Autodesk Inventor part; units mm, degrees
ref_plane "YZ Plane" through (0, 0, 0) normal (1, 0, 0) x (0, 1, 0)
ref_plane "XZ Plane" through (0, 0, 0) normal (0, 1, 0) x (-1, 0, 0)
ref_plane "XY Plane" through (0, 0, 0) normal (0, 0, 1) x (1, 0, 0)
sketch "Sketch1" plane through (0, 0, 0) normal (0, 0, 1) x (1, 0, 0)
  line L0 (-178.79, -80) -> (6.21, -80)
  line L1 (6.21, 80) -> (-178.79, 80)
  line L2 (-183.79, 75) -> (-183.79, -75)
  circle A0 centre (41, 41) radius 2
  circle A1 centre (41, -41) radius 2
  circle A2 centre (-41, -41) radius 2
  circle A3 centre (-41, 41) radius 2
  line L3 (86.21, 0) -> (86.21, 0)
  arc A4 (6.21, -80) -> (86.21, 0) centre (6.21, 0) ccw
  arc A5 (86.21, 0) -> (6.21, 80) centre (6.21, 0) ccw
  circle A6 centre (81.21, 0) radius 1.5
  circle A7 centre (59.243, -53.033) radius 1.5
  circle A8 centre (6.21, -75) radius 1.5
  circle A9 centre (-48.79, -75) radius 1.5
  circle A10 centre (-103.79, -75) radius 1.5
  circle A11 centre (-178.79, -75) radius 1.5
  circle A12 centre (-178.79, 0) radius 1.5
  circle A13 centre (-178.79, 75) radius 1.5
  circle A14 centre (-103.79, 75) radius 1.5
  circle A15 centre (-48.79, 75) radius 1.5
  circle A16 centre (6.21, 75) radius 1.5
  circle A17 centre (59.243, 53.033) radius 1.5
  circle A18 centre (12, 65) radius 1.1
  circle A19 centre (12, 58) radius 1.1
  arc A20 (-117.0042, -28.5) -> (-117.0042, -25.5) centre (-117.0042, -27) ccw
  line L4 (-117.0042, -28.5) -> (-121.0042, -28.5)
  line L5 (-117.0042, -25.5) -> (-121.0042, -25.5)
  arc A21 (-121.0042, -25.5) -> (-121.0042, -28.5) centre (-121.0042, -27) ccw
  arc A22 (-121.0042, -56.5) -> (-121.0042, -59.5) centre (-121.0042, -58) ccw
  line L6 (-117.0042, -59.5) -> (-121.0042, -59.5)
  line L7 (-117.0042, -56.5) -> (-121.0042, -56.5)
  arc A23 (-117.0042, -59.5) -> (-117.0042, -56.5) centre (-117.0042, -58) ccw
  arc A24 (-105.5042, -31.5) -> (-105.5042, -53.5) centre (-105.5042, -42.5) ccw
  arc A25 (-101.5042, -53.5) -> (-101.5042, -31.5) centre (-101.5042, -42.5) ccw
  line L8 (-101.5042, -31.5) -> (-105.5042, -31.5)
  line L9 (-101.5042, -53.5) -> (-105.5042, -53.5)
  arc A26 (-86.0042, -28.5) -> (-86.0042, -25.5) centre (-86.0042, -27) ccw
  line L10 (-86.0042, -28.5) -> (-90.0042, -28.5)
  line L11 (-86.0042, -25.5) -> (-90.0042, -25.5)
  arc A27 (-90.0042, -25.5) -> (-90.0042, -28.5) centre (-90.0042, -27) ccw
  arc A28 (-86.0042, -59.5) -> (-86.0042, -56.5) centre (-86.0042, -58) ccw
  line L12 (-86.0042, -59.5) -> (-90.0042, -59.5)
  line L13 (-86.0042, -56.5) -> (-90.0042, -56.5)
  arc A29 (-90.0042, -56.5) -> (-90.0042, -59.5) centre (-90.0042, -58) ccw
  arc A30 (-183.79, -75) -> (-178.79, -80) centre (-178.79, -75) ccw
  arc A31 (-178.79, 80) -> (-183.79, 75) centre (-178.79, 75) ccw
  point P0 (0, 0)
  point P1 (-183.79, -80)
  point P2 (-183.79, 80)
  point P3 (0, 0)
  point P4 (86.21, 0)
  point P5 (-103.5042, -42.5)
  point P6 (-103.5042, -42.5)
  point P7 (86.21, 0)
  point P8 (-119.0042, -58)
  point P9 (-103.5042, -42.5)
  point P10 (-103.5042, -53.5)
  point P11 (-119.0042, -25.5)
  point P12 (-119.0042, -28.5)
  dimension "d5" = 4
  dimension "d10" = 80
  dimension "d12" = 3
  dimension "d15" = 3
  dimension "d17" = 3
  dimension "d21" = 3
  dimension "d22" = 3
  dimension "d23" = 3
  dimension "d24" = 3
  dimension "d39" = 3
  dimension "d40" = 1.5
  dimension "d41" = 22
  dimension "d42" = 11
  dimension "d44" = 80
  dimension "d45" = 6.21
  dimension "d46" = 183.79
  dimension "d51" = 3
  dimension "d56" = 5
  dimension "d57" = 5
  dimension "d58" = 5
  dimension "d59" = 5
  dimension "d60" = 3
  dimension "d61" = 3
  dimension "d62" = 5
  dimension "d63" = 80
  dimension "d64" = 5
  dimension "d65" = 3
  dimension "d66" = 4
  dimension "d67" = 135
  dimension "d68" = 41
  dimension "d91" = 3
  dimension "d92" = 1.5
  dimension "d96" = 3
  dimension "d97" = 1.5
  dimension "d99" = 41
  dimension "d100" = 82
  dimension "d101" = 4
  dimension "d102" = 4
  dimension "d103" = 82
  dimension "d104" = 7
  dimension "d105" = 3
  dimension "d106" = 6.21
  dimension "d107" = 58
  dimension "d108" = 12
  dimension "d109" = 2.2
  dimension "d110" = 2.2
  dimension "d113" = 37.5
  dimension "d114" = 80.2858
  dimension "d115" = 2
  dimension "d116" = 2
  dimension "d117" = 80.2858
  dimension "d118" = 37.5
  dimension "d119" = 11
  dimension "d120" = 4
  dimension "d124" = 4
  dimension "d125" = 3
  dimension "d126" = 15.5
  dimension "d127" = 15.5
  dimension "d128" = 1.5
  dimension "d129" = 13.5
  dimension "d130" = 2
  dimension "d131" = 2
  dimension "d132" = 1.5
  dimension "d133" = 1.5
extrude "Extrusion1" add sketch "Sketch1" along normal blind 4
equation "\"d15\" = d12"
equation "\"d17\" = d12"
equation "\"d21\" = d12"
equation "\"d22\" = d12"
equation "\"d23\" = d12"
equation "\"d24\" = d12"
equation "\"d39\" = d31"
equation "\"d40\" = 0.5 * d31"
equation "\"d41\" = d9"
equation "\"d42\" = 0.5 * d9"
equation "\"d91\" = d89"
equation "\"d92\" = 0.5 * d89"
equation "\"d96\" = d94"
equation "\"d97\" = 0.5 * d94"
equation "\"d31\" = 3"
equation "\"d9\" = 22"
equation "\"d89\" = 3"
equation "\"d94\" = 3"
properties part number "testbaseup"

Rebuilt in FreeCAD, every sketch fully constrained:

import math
import FreeCAD as App
import Part
import Sketcher

V = App.Vector
Q = App.Units.Quantity

doc = App.newDocument("Part")
body = doc.addObject("PartDesign::Body", "Body")

sketch1 = body.newObject("Sketcher::SketchObject", "Sketch")
sketch1.AttachmentSupport = (doc.getObject("XY_Plane"), [""])
sketch1.MapMode = "FlatFace"
sketch1.addGeometry(Part.ArcOfCircle(Part.Circle(V(-178.8, -75, 0), V(0, 0, 1), 5), math.radians(180), math.radians(270)), False)
sketch1.addGeometry(Part.LineSegment(V(-178.8, -80, 0), V(6.2, -80, 0)), False)
sketch1.addGeometry(Part.ArcOfCircle(Part.Circle(V(6.2, 0, 0), V(0, 0, 1), 80), math.radians(-90), math.radians(90)), False)
sketch1.addGeometry(Part.LineSegment(V(6.2, 80, 0), V(-178.8, 80, 0)), False)
sketch1.addGeometry(Part.ArcOfCircle(Part.Circle(V(-178.8, 75, 0), V(0, 0, 1), 5), math.radians(90), math.radians(180)), False)
sketch1.addGeometry(Part.LineSegment(V(-183.8, 75, 0), V(-183.8, -75, 0)), False)
sketch1.addGeometry(Part.Circle(V(-178.8, -75, 0), V(0, 0, 1), 1.5), False)
sketch1.addGeometry(Part.ArcOfCircle(Part.Circle(V(-121, -58, 0), V(0, 0, 1), 1.5), math.radians(90), math.radians(270)), False)
sketch1.addGeometry(Part.LineSegment(V(-121, -56.5, 0), V(-117, -56.5, 0)), False)
sketch1.addGeometry(Part.ArcOfCircle(Part.Circle(V(-117, -58, 0), V(0, 0, 1), 1.5), math.radians(-90), math.radians(90)), False)
sketch1.addGeometry(Part.LineSegment(V(-117, -59.5, 0), V(-121, -59.5, 0)), False)
sketch1.addGeometry(Part.Circle(V(-103.8, -75, 0), V(0, 0, 1), 1.5), False)
sketch1.addGeometry(Part.ArcOfCircle(Part.Circle(V(-86, -58, 0), V(0, 0, 1), 1.5), math.radians(-90), math.radians(90)), False)
sketch1.addGeometry(Part.LineSegment(V(-86, -59.5, 0), V(-90, -59.5, 0)), False)
sketch1.addGeometry(Part.ArcOfCircle(Part.Circle(V(-90, -58, 0), V(0, 0, 1), 1.5), math.radians(90), math.radians(270)), False)
sketch1.addGeometry(Part.LineSegment(V(-90, -56.5, 0), V(-86, -56.5, 0)), False)
sketch1.addGeometry(Part.ArcOfCircle(Part.Circle(V(-105.5, -42.5, 0), V(0, 0, 1), 11), math.radians(90), math.radians(270)), False)
sketch1.addGeometry(Part.LineSegment(V(-105.5, -31.5, 0), V(-101.5, -31.5, 0)), False)
sketch1.addGeometry(Part.ArcOfCircle(Part.Circle(V(-101.5, -42.5, 0), V(0, 0, 1), 11), math.radians(-90), math.radians(90)), False)
sketch1.addGeometry(Part.LineSegment(V(-101.5, -53.5, 0), V(-105.5, -53.5, 0)), False)
sketch1.addGeometry(Part.ArcOfCircle(Part.Circle(V(-117, -27, 0), V(0, 0, 1), 1.5), math.radians(-90), math.radians(90)), False)
sketch1.addGeometry(Part.LineSegment(V(-117, -28.5, 0), V(-121, -28.5, 0)), False)
sketch1.addGeometry(Part.ArcOfCircle(Part.Circle(V(-121, -27, 0), V(0, 0, 1), 1.5), math.radians(90), math.radians(270)), False)
sketch1.addGeometry(Part.LineSegment(V(-121, -25.5, 0), V(-117, -25.5, 0)), False)
sketch1.addGeometry(Part.ArcOfCircle(Part.Circle(V(-86, -27, 0), V(0, 0, 1), 1.5), math.radians(-90), math.radians(90)), False)
sketch1.addGeometry(Part.LineSegment(V(-86, -28.5, 0), V(-90, -28.5, 0)), False)
sketch1.addGeometry(Part.ArcOfCircle(Part.Circle(V(-90, -27, 0), V(0, 0, 1), 1.5), math.radians(90), math.radians(270)), False)
sketch1.addGeometry(Part.LineSegment(V(-90, -25.5, 0), V(-86, -25.5, 0)), False)
sketch1.addGeometry(Part.Circle(V(-48.8, -75, 0), V(0, 0, 1), 1.5), False)
sketch1.addGeometry(Part.Circle(V(6.2, -75, 0), V(0, 0, 1), 1.5), False)
sketch1.addGeometry(Part.Circle(V(-41, -41, 0), V(0, 0, 1), 2), False)
sketch1.addGeometry(Part.Circle(V(41, -41, 0), V(0, 0, 1), 2), False)
sketch1.addGeometry(Part.Circle(V(59.2, -53, 0), V(0, 0, 1), 1.5), False)
sketch1.addGeometry(Part.Circle(V(-178.8, 0, 0), V(0, 0, 1), 1.5), False)
sketch1.addGeometry(Part.Circle(V(-178.8, 75, 0), V(0, 0, 1), 1.5), False)
sketch1.addGeometry(Part.Circle(V(-103.8, 75, 0), V(0, 0, 1), 1.5), False)
sketch1.addGeometry(Part.Circle(V(81.2, 0, 0), V(0, 0, 1), 1.5), False)
sketch1.addGeometry(Part.Circle(V(-41, 41, 0), V(0, 0, 1), 2), False)
sketch1.addGeometry(Part.Circle(V(12, 58, 0), V(0, 0, 1), 1.1), False)
sketch1.addGeometry(Part.Circle(V(-48.8, 75, 0), V(0, 0, 1), 1.5), False)
sketch1.addGeometry(Part.Circle(V(12, 65, 0), V(0, 0, 1), 1.1), False)
sketch1.addGeometry(Part.Circle(V(6.2, 75, 0), V(0, 0, 1), 1.5), False)
sketch1.addGeometry(Part.Circle(V(41, 41, 0), V(0, 0, 1), 2), False)
sketch1.addGeometry(Part.Circle(V(59.2, 53, 0), V(0, 0, 1), 1.5), False)
sketch1.addConstraint(Sketcher.Constraint("Tangent", 0, 2, 1, 1))
sketch1.addConstraint(Sketcher.Constraint("Tangent", 1, 2, 2, 1))
sketch1.addConstraint(Sketcher.Constraint("Tangent", 2, 2, 3, 1))
sketch1.addConstraint(Sketcher.Constraint("Tangent", 3, 2, 4, 1))
sketch1.addConstraint(Sketcher.Constraint("Tangent", 4, 2, 5, 1))
sketch1.addConstraint(Sketcher.Constraint("Tangent", 5, 2, 0, 1))
sketch1.addConstraint(Sketcher.Constraint("Tangent", 7, 1, 8, 1))
sketch1.addConstraint(Sketcher.Constraint("Tangent", 8, 2, 9, 2))
sketch1.addConstraint(Sketcher.Constraint("Tangent", 9, 1, 10, 1))
sketch1.addConstraint(Sketcher.Constraint("Tangent", 10, 2, 7, 2))
sketch1.addConstraint(Sketcher.Constraint("Tangent", 12, 1, 13, 1))
sketch1.addConstraint(Sketcher.Constraint("Tangent", 13, 2, 14, 2))
sketch1.addConstraint(Sketcher.Constraint("Tangent", 14, 1, 15, 1))
sketch1.addConstraint(Sketcher.Constraint("Tangent", 15, 2, 12, 2))
sketch1.addConstraint(Sketcher.Constraint("Tangent", 16, 1, 17, 1))
sketch1.addConstraint(Sketcher.Constraint("Tangent", 17, 2, 18, 2))
sketch1.addConstraint(Sketcher.Constraint("Tangent", 18, 1, 19, 1))
sketch1.addConstraint(Sketcher.Constraint("Tangent", 19, 2, 16, 2))
sketch1.addConstraint(Sketcher.Constraint("Tangent", 20, 1, 21, 1))
sketch1.addConstraint(Sketcher.Constraint("Tangent", 21, 2, 22, 2))
sketch1.addConstraint(Sketcher.Constraint("Tangent", 22, 1, 23, 1))
sketch1.addConstraint(Sketcher.Constraint("Tangent", 23, 2, 20, 2))
sketch1.addConstraint(Sketcher.Constraint("Tangent", 24, 1, 25, 1))
sketch1.addConstraint(Sketcher.Constraint("Tangent", 25, 2, 26, 2))
sketch1.addConstraint(Sketcher.Constraint("Tangent", 26, 1, 27, 1))
sketch1.addConstraint(Sketcher.Constraint("Tangent", 27, 2, 24, 2))
sketch1.addConstraint(Sketcher.Constraint("Horizontal", 1))
sketch1.addConstraint(Sketcher.Constraint("Horizontal", 3))
sketch1.addConstraint(Sketcher.Constraint("Vertical", 5))
sketch1.addConstraint(Sketcher.Constraint("Horizontal", 8))
sketch1.addConstraint(Sketcher.Constraint("Horizontal", 10))
sketch1.addConstraint(Sketcher.Constraint("Horizontal", 13))
sketch1.addConstraint(Sketcher.Constraint("Horizontal", 15))
sketch1.addConstraint(Sketcher.Constraint("Horizontal", 17))
sketch1.addConstraint(Sketcher.Constraint("Horizontal", 19))
sketch1.addConstraint(Sketcher.Constraint("Horizontal", 21))
sketch1.addConstraint(Sketcher.Constraint("Horizontal", 23))
sketch1.addConstraint(Sketcher.Constraint("Horizontal", 25))
sketch1.addConstraint(Sketcher.Constraint("Horizontal", 27))
sketch1.addConstraint(Sketcher.Constraint("Coincident", 6, 3, 0, 3))
sketch1.addConstraint(Sketcher.Constraint("Coincident", 34, 3, 4, 3))
sketch1.addConstraint(Sketcher.Constraint("Equal", 0, 4))
sketch1.addConstraint(Sketcher.Constraint("Equal", 6, 7))
sketch1.addConstraint(Sketcher.Constraint("Equal", 9, 11))
sketch1.addConstraint(Sketcher.Constraint("Equal", 11, 12))
sketch1.addConstraint(Sketcher.Constraint("Equal", 14, 20))
sketch1.addConstraint(Sketcher.Constraint("Equal", 22, 24))
sketch1.addConstraint(Sketcher.Constraint("Equal", 26, 28))
sketch1.addConstraint(Sketcher.Constraint("Equal", 28, 29))
sketch1.addConstraint(Sketcher.Constraint("Equal", 30, 31))
sketch1.addConstraint(Sketcher.Constraint("Equal", 29, 32))
sketch1.addConstraint(Sketcher.Constraint("Equal", 32, 33))
sketch1.addConstraint(Sketcher.Constraint("Equal", 33, 34))
sketch1.addConstraint(Sketcher.Constraint("Equal", 34, 35))
sketch1.addConstraint(Sketcher.Constraint("Equal", 35, 36))
sketch1.addConstraint(Sketcher.Constraint("Equal", 31, 37))
sketch1.addConstraint(Sketcher.Constraint("Equal", 36, 39))
sketch1.addConstraint(Sketcher.Constraint("Equal", 38, 40))
sketch1.addConstraint(Sketcher.Constraint("Equal", 39, 41))
sketch1.addConstraint(Sketcher.Constraint("Equal", 37, 42))
sketch1.addConstraint(Sketcher.Constraint("Equal", 41, 43))
sketch1.addConstraint(Sketcher.Constraint("Symmetric", 31, 3, 37, 3, -1, 1))
sketch1.addConstraint(Sketcher.Constraint("Symmetric", 30, 3, 42, 3, -1, 1))
sketch1.addConstraint(Sketcher.Constraint("Symmetric", 30, 3, 31, 3, -2))
sketch1.addConstraint(Sketcher.Constraint("Symmetric", 11, 3, 35, 3, -1))
sketch1.addConstraint(Sketcher.Constraint("Symmetric", 28, 3, 39, 3, -1))
sketch1.addConstraint(Sketcher.Constraint("Symmetric", 29, 3, 41, 3, -1))
sketch1.addConstraint(Sketcher.Constraint("Symmetric", 32, 3, 43, 3, -1))
sketch1.addConstraint(Sketcher.Constraint("PointOnObject", 2, 3, -1))
sketch1.addConstraint(Sketcher.Constraint("PointOnObject", 33, 3, -1))
sketch1.addConstraint(Sketcher.Constraint("PointOnObject", 36, 3, -1))
sketch1.addConstraint(Sketcher.Constraint("Horizontal", 6, 3, 11, 3))
sketch1.addConstraint(Sketcher.Constraint("Horizontal", 9, 3, 12, 3))
sketch1.addConstraint(Sketcher.Constraint("Horizontal", 22, 3, 24, 3))
sketch1.addConstraint(Sketcher.Constraint("Horizontal", 11, 3, 28, 3))
sketch1.addConstraint(Sketcher.Constraint("Horizontal", 28, 3, 29, 3))
sketch1.addConstraint(Sketcher.Constraint("Vertical", 9, 3, 20, 3))
sketch1.addConstraint(Sketcher.Constraint("Vertical", 7, 3, 22, 3))
sketch1.addConstraint(Sketcher.Constraint("Vertical", 12, 3, 24, 3))
sketch1.addConstraint(Sketcher.Constraint("Vertical", 14, 3, 26, 3))
sketch1.addConstraint(Sketcher.Constraint("Vertical", 2, 3, 29, 3))
sketch1.addConstraint(Sketcher.Constraint("Vertical", 6, 3, 33, 3))
sketch1.addConstraint(Sketcher.Constraint("Vertical", 38, 3, 40, 3))
sketch1.addConstraint(Sketcher.Constraint("Equal", 10, 13))
sketch1.addConstraint(Sketcher.Constraint("Equal", 15, 17))
sketch1.addConstraint(Sketcher.Constraint("Diameter", 6, Q("3 mm")))
sketch1.addConstraint(Sketcher.Constraint("Diameter", 30, Q("4 mm")))
sketch1.addConstraint(Sketcher.Constraint("Radius", 0, Q("5 mm")))
sketch1.addConstraint(Sketcher.Constraint("Radius", 2, Q("80 mm")))
sketch1.addConstraint(Sketcher.Constraint("Radius", 16, Q("11 mm")))
sketch1.addConstraint(Sketcher.Constraint("Diameter", 38, Q("2.2 mm")))
sketch1.addConstraint(Sketcher.Constraint("DistanceX", 8, 1, 8, 2, Q("4 mm")))
sketch1.addConstraint(Sketcher.Constraint("DistanceY", 7, 3, -1, 1, Q("58 mm")))
sketch1.addConstraint(Sketcher.Constraint("DistanceX", 30, 3, -1, 1, Q("41 mm")))
sketch1.addConstraint(Sketcher.Constraint("DistanceY", 30, 3, -1, 1, Q("41 mm")))
sketch1.addConstraint(Sketcher.Constraint("DistanceX", -1, 1, 38, 3, Q("12 mm")))
sketch1.addConstraint(Sketcher.Constraint("DistanceY", -1, 1, 38, 3, Q("58 mm")))
sketch1.addConstraint(Sketcher.Constraint("DistanceY", 38, 3, 40, 3, Q("7 mm")))
sketch1.addConstraint(Sketcher.Constraint("DistanceX", 4, 2, 35, 3, Q("80 mm")))
sketch1.addConstraint(Sketcher.Constraint("DistanceY", 14, 1, 18, 1, Q("3 mm")))
sketch1.addConstraint(Sketcher.Constraint("DistanceY", 16, 1, 20, 1, Q("3 mm")))
sketch1.addConstraint(Sketcher.Constraint("DistanceX", 7, 3, 16, 3, Q("15.5 mm")))
sketch1.addConstraint(Sketcher.Constraint("DistanceX", 16, 3, 14, 3, Q("15.5 mm")))
sketch1.addConstraint(Sketcher.Constraint("DistanceX", 1, 1, 1, 2, Q("185 mm")))
sketch1.addConstraint(Sketcher.Constraint("DistanceX", -1, 1, 2, 3, Q("6.21 mm")))
sketch1.addConstraint(Sketcher.Constraint("DistanceX", 11, 3, 28, 3, Q("55 mm")))
sketch1.addConstraint(Sketcher.Constraint("DistanceX", 2, 3, 36, 3, Q("75 mm")))
sketch1.addConstraint(Sketcher.Constraint("DistanceX", -1, 1, 32, 3, Q("59.243 mm")))
sketch1.addConstraint(Sketcher.Constraint("DistanceY", 32, 3, -1, 1, Q("53.033 mm")))
sketch1.addConstraint(Sketcher.Constraint("DistanceX", 7, 3, -1, 1, Q("121.0042 mm")))
pad1 = body.newObject("PartDesign::Pad", "Pad")
pad1.Profile = sketch1
pad1.Length = 4

doc.recompute()
